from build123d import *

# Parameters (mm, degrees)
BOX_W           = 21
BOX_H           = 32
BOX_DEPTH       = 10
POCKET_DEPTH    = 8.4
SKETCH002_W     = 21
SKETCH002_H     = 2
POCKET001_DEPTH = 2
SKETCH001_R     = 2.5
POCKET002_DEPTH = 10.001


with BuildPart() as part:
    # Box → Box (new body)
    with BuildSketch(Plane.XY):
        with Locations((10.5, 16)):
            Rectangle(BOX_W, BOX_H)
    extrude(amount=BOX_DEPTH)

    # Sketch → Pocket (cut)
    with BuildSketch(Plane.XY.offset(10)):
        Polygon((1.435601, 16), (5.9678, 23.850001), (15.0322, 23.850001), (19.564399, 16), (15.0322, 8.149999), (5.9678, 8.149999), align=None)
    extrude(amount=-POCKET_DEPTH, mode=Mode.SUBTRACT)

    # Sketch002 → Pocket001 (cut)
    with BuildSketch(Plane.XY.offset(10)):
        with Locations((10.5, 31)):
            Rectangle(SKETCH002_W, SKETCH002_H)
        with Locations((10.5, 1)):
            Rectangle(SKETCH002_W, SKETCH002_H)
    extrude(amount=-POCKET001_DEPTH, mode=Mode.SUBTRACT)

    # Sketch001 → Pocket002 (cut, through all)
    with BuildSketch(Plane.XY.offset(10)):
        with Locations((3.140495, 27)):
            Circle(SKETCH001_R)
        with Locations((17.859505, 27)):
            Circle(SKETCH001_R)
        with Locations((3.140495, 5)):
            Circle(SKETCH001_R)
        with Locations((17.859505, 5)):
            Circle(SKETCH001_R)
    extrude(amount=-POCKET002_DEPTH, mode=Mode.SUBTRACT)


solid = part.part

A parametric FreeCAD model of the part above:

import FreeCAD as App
import Part
import Sketcher
from FreeCAD import Vector
Q = App.Units.Quantity

doc = App.newDocument("Part")
params = doc.addObject("Spreadsheet::Sheet", "Params")
for row, (alias, value) in enumerate([
    ("sketch1_width", "21 mm"),
    ("sketch1_height", "32 mm"),
    ("pad1_length", "10 mm"),
    ("pocket1_length", "8.4 mm"),
    ("sketch3_width", "21 mm"),
    ("sketch3_height", "2 mm"),
    ("pocket2_length", "2 mm"),
    ("sketch4_diameter", "5 mm"),
], start=1):
    params.set(f"A{row}", alias)
    params.set(f"B{row}", "=" + value)
    params.setAlias(f"B{row}", alias)

body = doc.addObject("PartDesign::Body", "Body")

sketch1 = doc.addObject("Sketcher::SketchObject", "Sketch")
body.addObject(sketch1)
sketch1.AttachmentSupport = (doc.XY_Plane, [""])
sketch1.MapMode = "FlatFace"
sketch1.addGeometry([
    Part.LineSegment(Vector(0, 32, 0), Vector(0, 0, 0)),
    Part.LineSegment(Vector(0, 0, 0), Vector(21, 0, 0)),
    Part.LineSegment(Vector(21, 0, 0), Vector(21, 32, 0)),
    Part.LineSegment(Vector(21, 32, 0), Vector(0, 32, 0)),
], False)
sketch1.addConstraint([
    Sketcher.Constraint("Coincident", 0, 2, 1, 1),
    Sketcher.Constraint("Coincident", 1, 2, 2, 1),
    Sketcher.Constraint("Coincident", 2, 2, 3, 1),
    Sketcher.Constraint("Coincident", 3, 2, 0, 1),
    Sketcher.Constraint("Vertical", 0),
    Sketcher.Constraint("Horizontal", 1),
    Sketcher.Constraint("Vertical", 2),
    Sketcher.Constraint("Horizontal", 3),
    Sketcher.Constraint("Coincident", 0, 2, -1, 1),
    Sketcher.Constraint("DistanceX", 1, 1, 1, 2, Q("21 mm")),
    Sketcher.Constraint("DistanceY", 0, 2, 0, 1, Q("32 mm")),
])
sketch1.setExpression("Constraints[9]", "Params.sketch1_width")
sketch1.setExpression("Constraints[10]", "Params.sketch1_height")
pad1 = doc.addObject("PartDesign::Pad", "Pad")
body.addObject(pad1)
pad1.Profile = sketch1
pad1.setExpression("Length", "Params.pad1_length")

sketch2 = doc.addObject("Sketcher::SketchObject", "Sketch001")
body.addObject(sketch2)
sketch2.AttachmentSupport = (doc.XY_Plane, [""])
sketch2.MapMode = "FlatFace"
sketch2.AttachmentOffset = App.Placement(Vector(0, 0, 10), App.Rotation())
sketch2.addGeometry([
    Part.LineSegment(Vector(5.9678, 23.850001, 0), Vector(1.435601, 16, 0)),
    Part.LineSegment(Vector(1.435601, 16, 0), Vector(5.9678, 8.149999, 0)),
    Part.LineSegment(Vector(5.9678, 8.149999, 0), Vector(15.0322, 8.149999, 0)),
    Part.LineSegment(Vector(15.0322, 8.149999, 0), Vector(19.564399, 16, 0)),
    Part.LineSegment(Vector(19.564399, 16, 0), Vector(15.0322, 23.850001, 0)),
    Part.LineSegment(Vector(15.0322, 23.850001, 0), Vector(5.9678, 23.850001, 0)),
], False)
sketch2.addConstraint([
    Sketcher.Constraint("Coincident", 0, 2, 1, 1),
    Sketcher.Constraint("Coincident", 1, 2, 2, 1),
    Sketcher.Constraint("Coincident", 2, 2, 3, 1),
    Sketcher.Constraint("Coincident", 3, 2, 4, 1),
    Sketcher.Constraint("Coincident", 4, 2, 5, 1),
    Sketcher.Constraint("Coincident", 5, 2, 0, 1),
    Sketcher.Constraint("Horizontal", 2),
    Sketcher.Constraint("Horizontal", 5),
    Sketcher.Constraint("Parallel", 0, 3),
    Sketcher.Constraint("Parallel", 1, 4),
    Sketcher.Constraint("Horizontal", 0, 2, 3, 2),
    Sketcher.Constraint("Vertical", 2, 2, 4, 2),
    Sketcher.Constraint("Vertical", 1, 2, 5, 2),
    Sketcher.Constraint("Angle", 0, Q("-119.999993 deg")),
    Sketcher.Constraint("DistanceY", -1, 1, 0, 2, Q("16 mm")),
    Sketcher.Constraint("DistanceY", -1, 1, 1, 2, Q("8.149999 mm")),
    Sketcher.Constraint("DistanceX", 2, 1, 2, 2, Q("9.0644 mm")),
    Sketcher.Constraint("DistanceX", -1, 1, 0, 2, Q("1.435601 mm")),
])
pocket1 = doc.addObject("PartDesign::Pocket", "Pocket")
body.addObject(pocket1)
pocket1.Profile = sketch2
pocket1.setExpression("Length", "Params.pocket1_length")

sketch3 = doc.addObject("Sketcher::SketchObject", "Sketch002")
body.addObject(sketch3)
sketch3.AttachmentSupport = (doc.XY_Plane, [""])
sketch3.MapMode = "FlatFace"
sketch3.AttachmentOffset = App.Placement(Vector(0, 0, 10), App.Rotation())
sketch3.addGeometry([
    Part.LineSegment(Vector(0, 32, 0), Vector(0, 30, 0)),
    Part.LineSegment(Vector(0, 30, 0), Vector(21, 30, 0)),
    Part.LineSegment(Vector(21, 30, 0), Vector(21, 32, 0)),
    Part.LineSegment(Vector(21, 32, 0), Vector(0, 32, 0)),
    Part.LineSegment(Vector(0, 2, 0), Vector(0, 0, 0)),
    Part.LineSegment(Vector(0, 0, 0), Vector(21, 0, 0)),
    Part.LineSegment(Vector(21, 0, 0), Vector(21, 2, 0)),
    Part.LineSegment(Vector(21, 2, 0), Vector(0, 2, 0)),
], False)
sketch3.addConstraint([
    Sketcher.Constraint("Coincident", 0, 2, 1, 1),
    Sketcher.Constraint("Coincident", 1, 2, 2, 1),
    Sketcher.Constraint("Coincident", 2, 2, 3, 1),
    Sketcher.Constraint("Coincident", 3, 2, 0, 1),
    Sketcher.Constraint("Coincident", 4, 2, 5, 1),
    Sketcher.Constraint("Coincident", 5, 2, 6, 1),
    Sketcher.Constraint("Coincident", 6, 2, 7, 1),
    Sketcher.Constraint("Coincident", 7, 2, 4, 1),
    Sketcher.Constraint("Vertical", 0),
    Sketcher.Constraint("Horizontal", 1),
    Sketcher.Constraint("Vertical", 2),
    Sketcher.Constraint("Horizontal", 3),
    Sketcher.Constraint("Vertical", 4),
    Sketcher.Constraint("Horizontal", 5),
    Sketcher.Constraint("Vertical", 6),
    Sketcher.Constraint("Horizontal", 7),
    Sketcher.Constraint("Coincident", 4, 2, -1, 1),
    Sketcher.Constraint("PointOnObject", 0, 2, -2),
    Sketcher.Constraint("Vertical", 2, 2, 5, 2),
    Sketcher.Constraint("Equal", 2, 4),
    Sketcher.Constraint("DistanceX", 1, 1, 1, 2, Q("21 mm")),
    Sketcher.Constraint("DistanceY", 0, 2, 0, 1, Q("2 mm")),
    Sketcher.Constraint("DistanceY", -1, 1, 0, 2, Q("30 mm")),
])
sketch3.setExpression("Constraints[20]", "Params.sketch3_width")
sketch3.setExpression("Constraints[21]", "Params.sketch3_height")
pocket2 = doc.addObject("PartDesign::Pocket", "Pocket001")
body.addObject(pocket2)
pocket2.Profile = sketch3
pocket2.setExpression("Length", "Params.pocket2_length")

sketch4 = doc.addObject("Sketcher::SketchObject", "Sketch003")
body.addObject(sketch4)
sketch4.AttachmentSupport = (doc.XY_Plane, [""])
sketch4.MapMode = "FlatFace"
sketch4.AttachmentOffset = App.Placement(Vector(0, 0, 10), App.Rotation())
sketch4.addGeometry([
    Part.Circle(Vector(3.140495, 27, 0), Vector(0, 0, 1), 2.5),
    Part.Circle(Vector(17.859505, 27, 0), Vector(0, 0, 1), 2.5),
    Part.Circle(Vector(3.140495, 5, 0), Vector(0, 0, 1), 2.5),
    Part.Circle(Vector(17.859505, 5, 0), Vector(0, 0, 1), 2.5),
], False)
sketch4.addConstraint([
    Sketcher.Constraint("Equal", 0, 1),
    Sketcher.Constraint("Equal", 1, 2),
    Sketcher.Constraint("Equal", 2, 3),
    Sketcher.Constraint("Horizontal", 0, 3, 1, 3),
    Sketcher.Constraint("Horizontal", 2, 3, 3, 3),
    Sketcher.Constraint("Vertical", 0, 3, 2, 3),
    Sketcher.Constraint("Vertical", 1, 3, 3, 3),
    Sketcher.Constraint("Diameter", 0, Q("5 mm")),
    Sketcher.Constraint("DistanceY", -1, 1, 0, 3, Q("27 mm")),
    Sketcher.Constraint("DistanceY", -1, 1, 2, 3, Q("5 mm")),
    Sketcher.Constraint("DistanceX", 0, 3, 1, 3, Q("14.71901 mm")),
    Sketcher.Constraint("DistanceX", -1, 1, 0, 3, Q("3.140495 mm")),
])
sketch4.setExpression("Constraints[7]", "Params.sketch4_diameter")
pocket3 = doc.addObject("PartDesign::Pocket", "Pocket002")
body.addObject(pocket3)
pocket3.Profile = sketch4
pocket3.Type = "ThroughAll"

doc.recompute()
